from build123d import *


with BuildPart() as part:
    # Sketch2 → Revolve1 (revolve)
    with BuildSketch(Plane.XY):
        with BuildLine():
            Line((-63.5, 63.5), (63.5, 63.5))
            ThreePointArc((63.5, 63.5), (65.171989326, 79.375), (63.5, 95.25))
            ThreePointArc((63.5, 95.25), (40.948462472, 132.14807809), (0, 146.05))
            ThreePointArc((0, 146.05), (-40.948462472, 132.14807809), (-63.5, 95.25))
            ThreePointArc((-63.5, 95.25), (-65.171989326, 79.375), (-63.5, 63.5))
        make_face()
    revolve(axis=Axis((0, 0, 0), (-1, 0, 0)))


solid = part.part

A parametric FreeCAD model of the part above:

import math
import FreeCAD as App
import Part
import Sketcher

V = App.Vector
Q = App.Units.Quantity

doc = App.newDocument("Part")
body = doc.addObject("PartDesign::Body", "Body")

sketch1 = doc.addObject("Sketcher::SketchObject", "Sketch")
body.addObject(sketch1)
sketch1.AttachmentSupport = (doc.XY_Plane, [""])
sketch1.MapMode = "FlatFace"
sketch1.addGeometry([
    Part.LineSegment(V(-63.5, 63.5, 0), V(63.5, 63.5, 0)),
    Part.ArcOfCircle(Part.Circle(V(-11.028011, 79.375, 0), V(0, 0, 1), 76.2), math.radians(-12.024699), math.radians(12.024699)),
    Part.ArcOfCircle(Part.Circle(V(1.280327, 82.562909, 0), V(0, 0, 1), 63.5), math.radians(11.525072), math.radians(91.155312)),
    Part.ArcOfCircle(Part.Circle(V(-1.280327, 82.562909, 0), V(0, 0, 1), 63.5), math.radians(88.844688), math.radians(168.474928)),
    Part.ArcOfCircle(Part.Circle(V(11.028011, 79.375, 0), V(0, 0, 1), 76.2), math.radians(167.975301), math.radians(192.024699)),
], False)
sketch1.addConstraint([
    Sketcher.Constraint("Coincident", 0, 2, 1, 1),
    Sketcher.Constraint("Coincident", 1, 2, 2, 1),
    Sketcher.Constraint("Coincident", 2, 2, 3, 1),
    Sketcher.Constraint("Coincident", 3, 2, 4, 1),
    Sketcher.Constraint("Coincident", 4, 2, 0, 1),
    Sketcher.Constraint("Horizontal", 0),
    Sketcher.Constraint("Equal", 2, 3),
    Sketcher.Constraint("Equal", 1, 4),
    Sketcher.Constraint("Symmetric", 2, 3, 3, 3, -2),
    Sketcher.Constraint("Symmetric", 1, 3, 4, 3, -2),
    Sketcher.Constraint("Vertical", 0, 2, 1, 2),
    Sketcher.Constraint("Radius", 1, Q("3 in")),
    Sketcher.Constraint("Radius", 2, Q("2.5 in")),
    Sketcher.Constraint("DistanceX", 0, 1, 0, 2, Q("5 in")),
    Sketcher.Constraint("DistanceY", 1, 2, 2, 2, Q("2 in")),
    Sketcher.Constraint("DistanceY", -1, 1, 0, 2, Q("2.5 in")),
    Sketcher.Constraint("DistanceY", -1, 1, 1, 2, Q("3.75 in")),
])
revolution = doc.addObject("PartDesign::Revolution", "Revolution")
body.addObject(revolution)
revolution.Profile = sketch1
revolution.ReferenceAxis = (sketch1, ["H_Axis"])
revolution.Angle = 360

doc.recompute()
